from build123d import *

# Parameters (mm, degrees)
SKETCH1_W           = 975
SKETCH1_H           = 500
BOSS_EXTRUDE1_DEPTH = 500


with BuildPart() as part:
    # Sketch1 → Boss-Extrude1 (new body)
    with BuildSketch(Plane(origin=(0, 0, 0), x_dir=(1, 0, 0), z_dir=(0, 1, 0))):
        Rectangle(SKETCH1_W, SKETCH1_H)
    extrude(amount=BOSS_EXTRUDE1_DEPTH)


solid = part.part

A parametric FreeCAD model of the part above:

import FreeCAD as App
import Part
import Sketcher
from FreeCAD import Vector
Q = App.Units.Quantity

doc = App.newDocument("Part")
params = doc.addObject("Spreadsheet::Sheet", "Params")
for row, (alias, value) in enumerate([
    ("sketch1_width", "975 mm"),
    ("sketch1_height", "500 mm"),
    ("pad1_length", "500 mm"),
], start=1):
    params.set(f"A{row}", alias)
    params.set(f"B{row}", "=" + value)
    params.setAlias(f"B{row}", alias)

body = doc.addObject("PartDesign::Body", "Body")

# Sketch on XZ plane
sketch1 = doc.addObject("Sketcher::SketchObject", "Sketch")
body.addObject(sketch1)
sketch1.AttachmentSupport = (doc.XZ_Plane, [""])
sketch1.MapMode = "FlatFace"
sketch1.addGeometry([
    Part.LineSegment(Vector(-488, -250, 0), Vector(-488, 250, 0)),
    Part.LineSegment(Vector(-488, 250, 0), Vector(488, 250, 0)),
    Part.LineSegment(Vector(488, 250, 0), Vector(488, -250, 0)),
    Part.LineSegment(Vector(488, -250, 0), Vector(-488, -250, 0)),
], False)
sketch1.addConstraint([
    Sketcher.Constraint("Coincident", 0, 2, 1, 1),
    Sketcher.Constraint("Coincident", 1, 2, 2, 1),
    Sketcher.Constraint("Coincident", 2, 2, 3, 1),
    Sketcher.Constraint("Coincident", 3, 2, 0, 1),
    Sketcher.Constraint("Vertical", 0),
    Sketcher.Constraint("Horizontal", 1),
    Sketcher.Constraint("Vertical", 2),
    Sketcher.Constraint("Horizontal", 3),
    Sketcher.Constraint("Symmetric", 0, 2, 2, 2, -1, 1),
    Sketcher.Constraint("DistanceX", 1, 1, 1, 2, Q("975 mm")),
    Sketcher.Constraint("DistanceY", 0, 1, 0, 2, Q("500 mm")),
])
sketch1.setExpression("Constraints[9]", "Params.sketch1_width")
sketch1.setExpression("Constraints[10]", "Params.sketch1_height")
pad1 = doc.addObject("PartDesign::Pad", "Pad")
body.addObject(pad1)
pad1.Profile = sketch1
pad1.setExpression("Length", "Params.pad1_length")
pad1.Reversed = True

doc.recompute()
